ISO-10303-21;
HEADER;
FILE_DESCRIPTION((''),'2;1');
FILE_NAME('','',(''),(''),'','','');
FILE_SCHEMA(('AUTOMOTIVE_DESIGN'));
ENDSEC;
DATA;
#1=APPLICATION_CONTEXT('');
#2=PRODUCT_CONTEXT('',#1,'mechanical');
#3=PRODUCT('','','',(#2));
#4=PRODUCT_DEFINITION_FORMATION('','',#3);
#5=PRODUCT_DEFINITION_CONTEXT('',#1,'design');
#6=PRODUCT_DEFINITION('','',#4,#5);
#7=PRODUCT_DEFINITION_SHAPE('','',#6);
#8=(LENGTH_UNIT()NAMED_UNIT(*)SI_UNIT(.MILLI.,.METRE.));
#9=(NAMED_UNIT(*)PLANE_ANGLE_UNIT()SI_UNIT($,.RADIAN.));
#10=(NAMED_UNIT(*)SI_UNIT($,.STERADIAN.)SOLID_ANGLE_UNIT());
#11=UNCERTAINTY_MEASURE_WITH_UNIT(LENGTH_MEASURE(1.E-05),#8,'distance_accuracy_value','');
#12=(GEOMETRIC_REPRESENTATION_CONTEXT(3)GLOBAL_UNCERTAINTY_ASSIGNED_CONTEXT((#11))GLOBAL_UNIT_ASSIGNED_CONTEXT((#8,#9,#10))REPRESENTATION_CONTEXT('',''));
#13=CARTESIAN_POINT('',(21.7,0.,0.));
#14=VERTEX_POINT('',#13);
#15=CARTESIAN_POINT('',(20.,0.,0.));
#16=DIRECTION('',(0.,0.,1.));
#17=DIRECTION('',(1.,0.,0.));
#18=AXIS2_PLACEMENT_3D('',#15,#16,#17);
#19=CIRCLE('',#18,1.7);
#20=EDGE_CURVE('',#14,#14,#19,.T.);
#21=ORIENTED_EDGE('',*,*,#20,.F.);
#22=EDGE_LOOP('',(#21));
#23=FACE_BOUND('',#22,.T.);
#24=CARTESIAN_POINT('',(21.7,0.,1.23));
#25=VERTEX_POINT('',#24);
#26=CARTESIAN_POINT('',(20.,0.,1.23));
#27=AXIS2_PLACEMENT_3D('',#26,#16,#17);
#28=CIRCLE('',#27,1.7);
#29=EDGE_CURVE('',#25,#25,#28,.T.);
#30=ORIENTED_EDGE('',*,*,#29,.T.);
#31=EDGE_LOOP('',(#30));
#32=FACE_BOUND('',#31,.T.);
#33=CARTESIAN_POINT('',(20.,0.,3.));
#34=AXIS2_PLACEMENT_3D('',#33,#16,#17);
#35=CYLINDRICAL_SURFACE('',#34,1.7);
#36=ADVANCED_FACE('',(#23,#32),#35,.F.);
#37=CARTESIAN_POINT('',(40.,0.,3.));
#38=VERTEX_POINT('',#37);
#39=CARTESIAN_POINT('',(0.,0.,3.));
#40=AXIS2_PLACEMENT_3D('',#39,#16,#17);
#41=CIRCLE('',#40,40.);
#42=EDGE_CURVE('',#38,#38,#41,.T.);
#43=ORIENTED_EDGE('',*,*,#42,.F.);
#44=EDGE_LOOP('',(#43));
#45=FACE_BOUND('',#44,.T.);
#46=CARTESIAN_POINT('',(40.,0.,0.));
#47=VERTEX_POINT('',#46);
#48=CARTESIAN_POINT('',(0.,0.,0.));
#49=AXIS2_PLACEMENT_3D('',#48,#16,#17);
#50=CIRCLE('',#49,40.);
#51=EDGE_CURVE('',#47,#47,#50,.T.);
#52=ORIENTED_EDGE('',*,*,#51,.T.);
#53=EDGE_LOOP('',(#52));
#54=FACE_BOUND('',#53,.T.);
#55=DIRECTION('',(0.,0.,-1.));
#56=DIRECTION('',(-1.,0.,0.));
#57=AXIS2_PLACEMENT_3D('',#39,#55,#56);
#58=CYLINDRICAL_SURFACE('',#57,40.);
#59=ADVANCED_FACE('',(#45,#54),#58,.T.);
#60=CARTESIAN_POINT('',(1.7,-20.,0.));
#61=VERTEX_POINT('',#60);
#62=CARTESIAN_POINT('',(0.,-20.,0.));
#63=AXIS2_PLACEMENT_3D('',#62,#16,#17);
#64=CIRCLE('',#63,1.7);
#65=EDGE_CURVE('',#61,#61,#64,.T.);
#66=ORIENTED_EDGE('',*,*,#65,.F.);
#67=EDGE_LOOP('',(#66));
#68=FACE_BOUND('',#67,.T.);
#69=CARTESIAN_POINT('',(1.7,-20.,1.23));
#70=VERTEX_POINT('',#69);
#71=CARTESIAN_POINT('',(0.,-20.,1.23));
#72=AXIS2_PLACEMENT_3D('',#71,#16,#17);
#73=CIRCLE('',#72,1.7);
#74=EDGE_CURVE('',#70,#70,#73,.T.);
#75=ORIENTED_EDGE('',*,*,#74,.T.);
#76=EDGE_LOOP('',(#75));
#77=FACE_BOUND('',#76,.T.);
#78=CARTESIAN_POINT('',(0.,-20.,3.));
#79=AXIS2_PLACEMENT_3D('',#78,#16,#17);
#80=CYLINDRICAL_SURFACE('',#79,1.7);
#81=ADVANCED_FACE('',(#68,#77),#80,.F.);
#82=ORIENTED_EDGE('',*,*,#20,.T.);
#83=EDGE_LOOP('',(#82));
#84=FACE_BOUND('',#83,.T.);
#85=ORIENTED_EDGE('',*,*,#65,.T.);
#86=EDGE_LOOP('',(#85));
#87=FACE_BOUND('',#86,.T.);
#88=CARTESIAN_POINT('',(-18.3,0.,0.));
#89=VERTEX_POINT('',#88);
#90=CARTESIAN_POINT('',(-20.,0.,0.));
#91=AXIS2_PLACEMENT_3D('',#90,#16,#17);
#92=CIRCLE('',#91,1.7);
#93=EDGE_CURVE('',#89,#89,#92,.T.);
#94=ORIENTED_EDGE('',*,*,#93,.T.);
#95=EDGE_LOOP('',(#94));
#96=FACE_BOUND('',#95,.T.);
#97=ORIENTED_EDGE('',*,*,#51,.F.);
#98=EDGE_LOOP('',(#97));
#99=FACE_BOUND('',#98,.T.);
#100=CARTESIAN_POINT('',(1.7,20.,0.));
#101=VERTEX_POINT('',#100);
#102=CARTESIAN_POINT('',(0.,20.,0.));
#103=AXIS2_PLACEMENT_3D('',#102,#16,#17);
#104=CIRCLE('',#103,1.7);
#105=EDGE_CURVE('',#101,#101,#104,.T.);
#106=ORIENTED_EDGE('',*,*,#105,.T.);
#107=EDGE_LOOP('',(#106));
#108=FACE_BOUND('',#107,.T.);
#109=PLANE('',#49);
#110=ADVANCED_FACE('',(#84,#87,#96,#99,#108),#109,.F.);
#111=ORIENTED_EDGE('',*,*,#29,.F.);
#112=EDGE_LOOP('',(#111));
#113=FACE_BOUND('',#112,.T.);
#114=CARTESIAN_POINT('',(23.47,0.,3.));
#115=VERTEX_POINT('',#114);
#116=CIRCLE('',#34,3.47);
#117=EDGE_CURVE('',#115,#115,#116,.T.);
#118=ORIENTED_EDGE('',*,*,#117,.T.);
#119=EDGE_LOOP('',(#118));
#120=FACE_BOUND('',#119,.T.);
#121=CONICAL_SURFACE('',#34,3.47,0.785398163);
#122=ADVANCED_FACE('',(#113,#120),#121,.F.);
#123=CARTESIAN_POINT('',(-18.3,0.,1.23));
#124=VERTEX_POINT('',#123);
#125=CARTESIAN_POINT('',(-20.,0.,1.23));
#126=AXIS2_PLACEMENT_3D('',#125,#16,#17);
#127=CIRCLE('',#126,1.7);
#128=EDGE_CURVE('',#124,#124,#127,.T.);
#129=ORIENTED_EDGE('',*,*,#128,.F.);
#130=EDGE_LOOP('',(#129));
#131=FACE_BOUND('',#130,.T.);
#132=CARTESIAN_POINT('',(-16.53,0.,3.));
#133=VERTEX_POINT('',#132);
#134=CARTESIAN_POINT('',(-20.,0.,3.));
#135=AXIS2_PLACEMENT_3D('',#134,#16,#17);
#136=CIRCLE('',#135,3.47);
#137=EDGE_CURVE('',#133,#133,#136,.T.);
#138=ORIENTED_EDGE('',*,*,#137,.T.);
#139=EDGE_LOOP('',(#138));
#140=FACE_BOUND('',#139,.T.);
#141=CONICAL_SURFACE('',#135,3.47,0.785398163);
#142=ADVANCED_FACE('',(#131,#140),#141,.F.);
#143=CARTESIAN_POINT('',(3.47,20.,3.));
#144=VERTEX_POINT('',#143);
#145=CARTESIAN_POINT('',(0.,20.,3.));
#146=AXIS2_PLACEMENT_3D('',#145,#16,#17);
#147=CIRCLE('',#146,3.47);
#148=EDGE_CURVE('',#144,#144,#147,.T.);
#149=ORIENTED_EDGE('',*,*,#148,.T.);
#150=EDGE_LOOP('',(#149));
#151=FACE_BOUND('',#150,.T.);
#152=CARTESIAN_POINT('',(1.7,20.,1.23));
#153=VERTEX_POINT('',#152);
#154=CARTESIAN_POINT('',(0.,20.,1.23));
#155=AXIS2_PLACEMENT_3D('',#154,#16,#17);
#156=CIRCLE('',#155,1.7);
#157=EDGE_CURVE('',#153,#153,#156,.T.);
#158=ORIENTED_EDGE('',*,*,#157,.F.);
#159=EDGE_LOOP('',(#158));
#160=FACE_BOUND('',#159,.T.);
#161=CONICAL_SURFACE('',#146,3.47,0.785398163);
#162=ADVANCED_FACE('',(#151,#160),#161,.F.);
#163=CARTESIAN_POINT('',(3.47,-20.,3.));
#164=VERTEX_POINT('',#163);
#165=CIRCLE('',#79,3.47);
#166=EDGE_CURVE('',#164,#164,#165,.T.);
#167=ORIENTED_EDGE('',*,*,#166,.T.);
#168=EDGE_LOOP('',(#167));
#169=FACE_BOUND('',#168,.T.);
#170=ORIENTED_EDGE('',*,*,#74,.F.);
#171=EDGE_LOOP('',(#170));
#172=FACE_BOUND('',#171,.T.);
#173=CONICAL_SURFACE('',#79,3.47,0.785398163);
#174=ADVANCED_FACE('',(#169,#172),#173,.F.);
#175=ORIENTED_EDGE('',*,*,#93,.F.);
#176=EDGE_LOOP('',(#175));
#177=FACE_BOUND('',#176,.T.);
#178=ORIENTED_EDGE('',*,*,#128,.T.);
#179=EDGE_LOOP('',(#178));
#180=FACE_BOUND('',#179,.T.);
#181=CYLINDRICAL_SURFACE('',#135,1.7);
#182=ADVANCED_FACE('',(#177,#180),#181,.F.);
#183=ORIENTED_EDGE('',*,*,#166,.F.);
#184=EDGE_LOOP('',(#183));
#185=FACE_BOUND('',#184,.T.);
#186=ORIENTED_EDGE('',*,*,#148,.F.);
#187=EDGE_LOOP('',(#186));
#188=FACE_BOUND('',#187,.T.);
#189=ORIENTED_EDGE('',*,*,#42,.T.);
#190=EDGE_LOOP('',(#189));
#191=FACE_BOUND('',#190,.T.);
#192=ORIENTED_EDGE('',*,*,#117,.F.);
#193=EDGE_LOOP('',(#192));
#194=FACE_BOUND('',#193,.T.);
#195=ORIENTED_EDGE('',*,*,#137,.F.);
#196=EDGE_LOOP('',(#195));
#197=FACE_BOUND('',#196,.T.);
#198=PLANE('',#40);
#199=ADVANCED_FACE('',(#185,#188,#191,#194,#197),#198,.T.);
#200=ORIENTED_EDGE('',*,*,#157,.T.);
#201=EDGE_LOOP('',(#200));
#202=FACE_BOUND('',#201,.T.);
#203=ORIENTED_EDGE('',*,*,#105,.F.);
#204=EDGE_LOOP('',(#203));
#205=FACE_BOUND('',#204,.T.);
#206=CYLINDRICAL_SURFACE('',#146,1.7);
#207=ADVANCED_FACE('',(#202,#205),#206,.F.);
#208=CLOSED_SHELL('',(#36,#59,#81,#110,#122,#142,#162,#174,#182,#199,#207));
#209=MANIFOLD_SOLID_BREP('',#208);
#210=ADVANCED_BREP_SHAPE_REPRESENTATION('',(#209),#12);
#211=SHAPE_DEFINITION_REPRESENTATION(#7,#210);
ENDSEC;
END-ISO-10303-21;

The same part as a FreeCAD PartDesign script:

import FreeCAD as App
import Part
import Sketcher

doc = App.newDocument("Part")
body = doc.addObject("PartDesign::Body", "Body")

# Sketch on XY plane
sketch1 = body.newObject("Sketcher::SketchObject", "Sketch")
sketch1.AttachmentSupport = (doc.getObject("XY_Plane"), [""])
sketch1.MapMode = "FlatFace"
sketch1.addGeometry(Part.Circle(App.Vector(0, 0, 0), App.Vector(0, 0, 1), 40), False)
sketch1.addConstraint(Sketcher.Constraint("Coincident", 0, 3, -1, 1))
sketch1.addConstraint(Sketcher.Constraint("Diameter", 0, 80.0))
pad1 = body.newObject("PartDesign::Pad", "Pad")
pad1.Profile = sketch1
pad1.Length = 3

# Sketch on XY plane
sketch2 = body.newObject("Sketcher::SketchObject", "Sketch001")
sketch2.AttachmentSupport = (doc.getObject("XY_Plane"), [""])
sketch2.MapMode = "FlatFace"
sketch2.AttachmentOffset = App.Placement(App.Vector(0, 0, 3), App.Rotation())
sketch2.addGeometry(Part.Circle(App.Vector(0, 20, 0), App.Vector(0, 0, 1), 1.7), False)
sketch2.addGeometry(Part.Circle(App.Vector(20, 0, 0), App.Vector(0, 0, 1), 1.7), False)
sketch2.addGeometry(Part.Circle(App.Vector(0, -20, 0), App.Vector(0, 0, 1), 1.7), False)
sketch2.addGeometry(Part.Circle(App.Vector(-20, 0, 0), App.Vector(0, 0, 1), 1.7), False)
sketch2.addConstraint(Sketcher.Constraint("Equal", 0, 1))
sketch2.addConstraint(Sketcher.Constraint("Equal", 1, 2))
sketch2.addConstraint(Sketcher.Constraint("Equal", 2, 3))
sketch2.addConstraint(Sketcher.Constraint("Symmetric", 0, 3, 2, 3, -1, 1))
sketch2.addConstraint(Sketcher.Constraint("Symmetric", 1, 3, 3, 3, -1, 1))
sketch2.addConstraint(Sketcher.Constraint("PointOnObject", 0, 3, -2))
sketch2.addConstraint(Sketcher.Constraint("PointOnObject", 1, 3, -1))
sketch2.addConstraint(Sketcher.Constraint("Diameter", 0, 3.4))
sketch2.addConstraint(Sketcher.Constraint("DistanceY", -1, 1, 0, 3, 20.0))
sketch2.addConstraint(Sketcher.Constraint("DistanceX", -1, 1, 1, 3, 20.0))
doc.recompute()
hole = body.newObject("PartDesign::Hole", "Hole")
hole.Profile = sketch2
hole.ThreadType = "None"
hole.Diameter = 3.4
hole.DepthType = "Dimension"
hole.Depth = 10.12
hole.DrillPoint = "Angled"
hole.DrillPointAngle = 118
hole.HoleCutType = "Countersink"
hole.HoleCutDiameter = 6.94
hole.HoleCutCountersinkAngle = 90

doc.recompute()
